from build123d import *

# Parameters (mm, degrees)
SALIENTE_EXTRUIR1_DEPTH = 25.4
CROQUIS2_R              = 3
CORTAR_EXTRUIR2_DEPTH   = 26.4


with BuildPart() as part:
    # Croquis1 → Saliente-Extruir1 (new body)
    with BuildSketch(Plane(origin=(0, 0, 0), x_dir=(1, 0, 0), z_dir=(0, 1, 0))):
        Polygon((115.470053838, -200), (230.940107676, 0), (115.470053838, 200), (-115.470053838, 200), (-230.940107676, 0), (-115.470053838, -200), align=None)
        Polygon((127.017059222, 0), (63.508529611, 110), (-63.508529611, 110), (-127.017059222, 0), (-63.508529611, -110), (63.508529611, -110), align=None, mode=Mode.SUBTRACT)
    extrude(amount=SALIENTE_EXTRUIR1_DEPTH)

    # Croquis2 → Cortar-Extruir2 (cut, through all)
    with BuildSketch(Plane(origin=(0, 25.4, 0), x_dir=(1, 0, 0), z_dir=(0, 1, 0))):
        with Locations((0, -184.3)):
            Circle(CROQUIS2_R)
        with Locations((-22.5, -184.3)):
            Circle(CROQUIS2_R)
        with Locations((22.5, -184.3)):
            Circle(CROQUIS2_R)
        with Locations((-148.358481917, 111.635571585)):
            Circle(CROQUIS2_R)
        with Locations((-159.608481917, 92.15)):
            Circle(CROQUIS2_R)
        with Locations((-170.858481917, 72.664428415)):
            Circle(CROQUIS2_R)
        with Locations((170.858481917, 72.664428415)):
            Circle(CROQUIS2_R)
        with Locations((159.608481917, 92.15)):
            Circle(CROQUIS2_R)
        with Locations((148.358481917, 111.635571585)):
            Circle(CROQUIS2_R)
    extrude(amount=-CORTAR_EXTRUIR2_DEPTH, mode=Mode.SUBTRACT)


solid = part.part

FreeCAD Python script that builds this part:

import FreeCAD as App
import Part
import Sketcher
Q = App.Units.Quantity


def add_polygon(sketch, points):
    """Adds a closed chain of lines whose ends are joined by coincident constraints."""
    first, n = sketch.GeometryCount, len(points)
    for a, b in zip(points, points[1:] + points[:1]):
        sketch.addGeometry(Part.LineSegment(App.Vector(*a, 0), App.Vector(*b, 0)), False)
    for i in range(n):
        sketch.addConstraint(Sketcher.Constraint("Coincident", first + i, 2, first + (i + 1) % n, 1))

doc = App.newDocument("Part")
body = doc.addObject("PartDesign::Body", "Body")

# Sketch on XZ plane
sketch1 = body.newObject("Sketcher::SketchObject", "Sketch")
sketch1.AttachmentSupport = (doc.getObject("XZ_Plane"), [""])
sketch1.MapMode = "FlatFace"
add_polygon(sketch1, [(115, 200), (231, 0), (115, -200), (-115, -200), (-231, 0), (-115, 200)])  # lines 0-5
add_polygon(sketch1, [(64, -110), (127, 0), (64, 110), (-64, 110), (-127, 0), (-64, -110)])  # lines 6-11
sketch1.addConstraint([
    Sketcher.Constraint("Horizontal", 2),
    Sketcher.Constraint("Horizontal", 5),
    Sketcher.Constraint("Horizontal", 8),
    Sketcher.Constraint("Horizontal", 11),
    Sketcher.Constraint("Symmetric", 0, 2, 3, 2, -1, 1),
    Sketcher.Constraint("Symmetric", 1, 2, 4, 2, -1, 1),
    Sketcher.Constraint("Symmetric", 6, 2, 9, 2, -1, 1),
    Sketcher.Constraint("Symmetric", 7, 2, 10, 2, -1, 1),
    Sketcher.Constraint("PointOnObject", 0, 2, -1),
    Sketcher.Constraint("PointOnObject", 6, 2, -1),
    Sketcher.Constraint("Parallel", 0, 3),
    Sketcher.Constraint("Parallel", 4, 6),
    Sketcher.Constraint("Parallel", 3, 7),
    Sketcher.Constraint("Parallel", 6, 9),
    Sketcher.Constraint("Vertical", 2, 2, 4, 2),
    Sketcher.Constraint("Angle", 0, Q("-60 deg")),
    Sketcher.Constraint("DistanceY", 1, 2, -1, 1, 200.0),
    Sketcher.Constraint("DistanceY", -1, 1, 7, 2, 110.0),
    Sketcher.Constraint("DistanceX", 8, 2, 8, 1, 127.017059),
    Sketcher.Constraint("DistanceX", 2, 2, 2, 1, 230.940108),
])
pad1 = body.newObject("PartDesign::Pad", "Pad")
pad1.Profile = sketch1
pad1.Length = 25.4
pad1.Reversed = True

# Sketch on XZ plane
sketch2 = body.newObject("Sketcher::SketchObject", "Sketch001")
sketch2.AttachmentSupport = (doc.getObject("XZ_Plane"), [""])
sketch2.MapMode = "FlatFace"
sketch2.AttachmentOffset = App.Placement(App.Vector(0, 0, -25.4), App.Rotation())
sketch2.addGeometry([
    Part.Circle(App.Vector(0, 184.3, 0), App.Vector(0, 0, 1), 3),  # 0
    Part.Circle(App.Vector(-22.5, 184.3, 0), App.Vector(0, 0, 1), 3),  # 1
    Part.Circle(App.Vector(22.5, 184.3, 0), App.Vector(0, 0, 1), 3),  # 2
    Part.Circle(App.Vector(-148.4, -111.6, 0), App.Vector(0, 0, 1), 3),  # 3
    Part.Circle(App.Vector(-159.6, -92.2, 0), App.Vector(0, 0, 1), 3),  # 4
    Part.Circle(App.Vector(-170.9, -72.7, 0), App.Vector(0, 0, 1), 3),  # 5
    Part.Circle(App.Vector(170.9, -72.7, 0), App.Vector(0, 0, 1), 3),  # 6
    Part.Circle(App.Vector(159.6, -92.2, 0), App.Vector(0, 0, 1), 3),  # 7
    Part.Circle(App.Vector(148.4, -111.6, 0), App.Vector(0, 0, 1), 3),  # 8
], False)
sketch2.addConstraint([
    Sketcher.Constraint("Equal", 0, 1),
    Sketcher.Constraint("Equal", 1, 2),
    Sketcher.Constraint("Equal", 2, 3),
    Sketcher.Constraint("Equal", 3, 4),
    Sketcher.Constraint("Equal", 4, 5),
    Sketcher.Constraint("Equal", 5, 6),
    Sketcher.Constraint("Equal", 6, 7),
    Sketcher.Constraint("Equal", 7, 8),
    Sketcher.Constraint("Symmetric", 1, 3, 2, 3, -2),
    Sketcher.Constraint("Symmetric", 5, 3, 6, 3, -2),
    Sketcher.Constraint("Symmetric", 4, 3, 7, 3, -2),
    Sketcher.Constraint("Symmetric", 3, 3, 8, 3, -2),
    Sketcher.Constraint("PointOnObject", 0, 3, -2),
    Sketcher.Constraint("Horizontal", 0, 3, 1, 3),
    Sketcher.Constraint("Diameter", 0, 6.0),
    Sketcher.Constraint("DistanceX", 1, 3, 2, 3, 45.0),
    Sketcher.Constraint("DistanceY", -1, 1, 0, 3, 184.3),
    Sketcher.Constraint("DistanceX", 5, 3, 3, 3, 22.5),
    Sketcher.Constraint("DistanceY", 4, 3, -1, 1, 92.15),
    Sketcher.Constraint("DistanceX", 4, 3, 3, 3, 11.25),
    Sketcher.Constraint("DistanceX", 3, 3, -1, 1, 148.358482),
    Sketcher.Constraint("DistanceY", 3, 3, -1, 1, 111.635572),
    Sketcher.Constraint("DistanceY", 5, 3, -1, 1, 72.664428),
])
pocket1 = body.newObject("PartDesign::Pocket", "Pocket")
pocket1.Profile = sketch2
pocket1.Type = "ThroughAll"
pocket1.Reversed = True

doc.recompute()
